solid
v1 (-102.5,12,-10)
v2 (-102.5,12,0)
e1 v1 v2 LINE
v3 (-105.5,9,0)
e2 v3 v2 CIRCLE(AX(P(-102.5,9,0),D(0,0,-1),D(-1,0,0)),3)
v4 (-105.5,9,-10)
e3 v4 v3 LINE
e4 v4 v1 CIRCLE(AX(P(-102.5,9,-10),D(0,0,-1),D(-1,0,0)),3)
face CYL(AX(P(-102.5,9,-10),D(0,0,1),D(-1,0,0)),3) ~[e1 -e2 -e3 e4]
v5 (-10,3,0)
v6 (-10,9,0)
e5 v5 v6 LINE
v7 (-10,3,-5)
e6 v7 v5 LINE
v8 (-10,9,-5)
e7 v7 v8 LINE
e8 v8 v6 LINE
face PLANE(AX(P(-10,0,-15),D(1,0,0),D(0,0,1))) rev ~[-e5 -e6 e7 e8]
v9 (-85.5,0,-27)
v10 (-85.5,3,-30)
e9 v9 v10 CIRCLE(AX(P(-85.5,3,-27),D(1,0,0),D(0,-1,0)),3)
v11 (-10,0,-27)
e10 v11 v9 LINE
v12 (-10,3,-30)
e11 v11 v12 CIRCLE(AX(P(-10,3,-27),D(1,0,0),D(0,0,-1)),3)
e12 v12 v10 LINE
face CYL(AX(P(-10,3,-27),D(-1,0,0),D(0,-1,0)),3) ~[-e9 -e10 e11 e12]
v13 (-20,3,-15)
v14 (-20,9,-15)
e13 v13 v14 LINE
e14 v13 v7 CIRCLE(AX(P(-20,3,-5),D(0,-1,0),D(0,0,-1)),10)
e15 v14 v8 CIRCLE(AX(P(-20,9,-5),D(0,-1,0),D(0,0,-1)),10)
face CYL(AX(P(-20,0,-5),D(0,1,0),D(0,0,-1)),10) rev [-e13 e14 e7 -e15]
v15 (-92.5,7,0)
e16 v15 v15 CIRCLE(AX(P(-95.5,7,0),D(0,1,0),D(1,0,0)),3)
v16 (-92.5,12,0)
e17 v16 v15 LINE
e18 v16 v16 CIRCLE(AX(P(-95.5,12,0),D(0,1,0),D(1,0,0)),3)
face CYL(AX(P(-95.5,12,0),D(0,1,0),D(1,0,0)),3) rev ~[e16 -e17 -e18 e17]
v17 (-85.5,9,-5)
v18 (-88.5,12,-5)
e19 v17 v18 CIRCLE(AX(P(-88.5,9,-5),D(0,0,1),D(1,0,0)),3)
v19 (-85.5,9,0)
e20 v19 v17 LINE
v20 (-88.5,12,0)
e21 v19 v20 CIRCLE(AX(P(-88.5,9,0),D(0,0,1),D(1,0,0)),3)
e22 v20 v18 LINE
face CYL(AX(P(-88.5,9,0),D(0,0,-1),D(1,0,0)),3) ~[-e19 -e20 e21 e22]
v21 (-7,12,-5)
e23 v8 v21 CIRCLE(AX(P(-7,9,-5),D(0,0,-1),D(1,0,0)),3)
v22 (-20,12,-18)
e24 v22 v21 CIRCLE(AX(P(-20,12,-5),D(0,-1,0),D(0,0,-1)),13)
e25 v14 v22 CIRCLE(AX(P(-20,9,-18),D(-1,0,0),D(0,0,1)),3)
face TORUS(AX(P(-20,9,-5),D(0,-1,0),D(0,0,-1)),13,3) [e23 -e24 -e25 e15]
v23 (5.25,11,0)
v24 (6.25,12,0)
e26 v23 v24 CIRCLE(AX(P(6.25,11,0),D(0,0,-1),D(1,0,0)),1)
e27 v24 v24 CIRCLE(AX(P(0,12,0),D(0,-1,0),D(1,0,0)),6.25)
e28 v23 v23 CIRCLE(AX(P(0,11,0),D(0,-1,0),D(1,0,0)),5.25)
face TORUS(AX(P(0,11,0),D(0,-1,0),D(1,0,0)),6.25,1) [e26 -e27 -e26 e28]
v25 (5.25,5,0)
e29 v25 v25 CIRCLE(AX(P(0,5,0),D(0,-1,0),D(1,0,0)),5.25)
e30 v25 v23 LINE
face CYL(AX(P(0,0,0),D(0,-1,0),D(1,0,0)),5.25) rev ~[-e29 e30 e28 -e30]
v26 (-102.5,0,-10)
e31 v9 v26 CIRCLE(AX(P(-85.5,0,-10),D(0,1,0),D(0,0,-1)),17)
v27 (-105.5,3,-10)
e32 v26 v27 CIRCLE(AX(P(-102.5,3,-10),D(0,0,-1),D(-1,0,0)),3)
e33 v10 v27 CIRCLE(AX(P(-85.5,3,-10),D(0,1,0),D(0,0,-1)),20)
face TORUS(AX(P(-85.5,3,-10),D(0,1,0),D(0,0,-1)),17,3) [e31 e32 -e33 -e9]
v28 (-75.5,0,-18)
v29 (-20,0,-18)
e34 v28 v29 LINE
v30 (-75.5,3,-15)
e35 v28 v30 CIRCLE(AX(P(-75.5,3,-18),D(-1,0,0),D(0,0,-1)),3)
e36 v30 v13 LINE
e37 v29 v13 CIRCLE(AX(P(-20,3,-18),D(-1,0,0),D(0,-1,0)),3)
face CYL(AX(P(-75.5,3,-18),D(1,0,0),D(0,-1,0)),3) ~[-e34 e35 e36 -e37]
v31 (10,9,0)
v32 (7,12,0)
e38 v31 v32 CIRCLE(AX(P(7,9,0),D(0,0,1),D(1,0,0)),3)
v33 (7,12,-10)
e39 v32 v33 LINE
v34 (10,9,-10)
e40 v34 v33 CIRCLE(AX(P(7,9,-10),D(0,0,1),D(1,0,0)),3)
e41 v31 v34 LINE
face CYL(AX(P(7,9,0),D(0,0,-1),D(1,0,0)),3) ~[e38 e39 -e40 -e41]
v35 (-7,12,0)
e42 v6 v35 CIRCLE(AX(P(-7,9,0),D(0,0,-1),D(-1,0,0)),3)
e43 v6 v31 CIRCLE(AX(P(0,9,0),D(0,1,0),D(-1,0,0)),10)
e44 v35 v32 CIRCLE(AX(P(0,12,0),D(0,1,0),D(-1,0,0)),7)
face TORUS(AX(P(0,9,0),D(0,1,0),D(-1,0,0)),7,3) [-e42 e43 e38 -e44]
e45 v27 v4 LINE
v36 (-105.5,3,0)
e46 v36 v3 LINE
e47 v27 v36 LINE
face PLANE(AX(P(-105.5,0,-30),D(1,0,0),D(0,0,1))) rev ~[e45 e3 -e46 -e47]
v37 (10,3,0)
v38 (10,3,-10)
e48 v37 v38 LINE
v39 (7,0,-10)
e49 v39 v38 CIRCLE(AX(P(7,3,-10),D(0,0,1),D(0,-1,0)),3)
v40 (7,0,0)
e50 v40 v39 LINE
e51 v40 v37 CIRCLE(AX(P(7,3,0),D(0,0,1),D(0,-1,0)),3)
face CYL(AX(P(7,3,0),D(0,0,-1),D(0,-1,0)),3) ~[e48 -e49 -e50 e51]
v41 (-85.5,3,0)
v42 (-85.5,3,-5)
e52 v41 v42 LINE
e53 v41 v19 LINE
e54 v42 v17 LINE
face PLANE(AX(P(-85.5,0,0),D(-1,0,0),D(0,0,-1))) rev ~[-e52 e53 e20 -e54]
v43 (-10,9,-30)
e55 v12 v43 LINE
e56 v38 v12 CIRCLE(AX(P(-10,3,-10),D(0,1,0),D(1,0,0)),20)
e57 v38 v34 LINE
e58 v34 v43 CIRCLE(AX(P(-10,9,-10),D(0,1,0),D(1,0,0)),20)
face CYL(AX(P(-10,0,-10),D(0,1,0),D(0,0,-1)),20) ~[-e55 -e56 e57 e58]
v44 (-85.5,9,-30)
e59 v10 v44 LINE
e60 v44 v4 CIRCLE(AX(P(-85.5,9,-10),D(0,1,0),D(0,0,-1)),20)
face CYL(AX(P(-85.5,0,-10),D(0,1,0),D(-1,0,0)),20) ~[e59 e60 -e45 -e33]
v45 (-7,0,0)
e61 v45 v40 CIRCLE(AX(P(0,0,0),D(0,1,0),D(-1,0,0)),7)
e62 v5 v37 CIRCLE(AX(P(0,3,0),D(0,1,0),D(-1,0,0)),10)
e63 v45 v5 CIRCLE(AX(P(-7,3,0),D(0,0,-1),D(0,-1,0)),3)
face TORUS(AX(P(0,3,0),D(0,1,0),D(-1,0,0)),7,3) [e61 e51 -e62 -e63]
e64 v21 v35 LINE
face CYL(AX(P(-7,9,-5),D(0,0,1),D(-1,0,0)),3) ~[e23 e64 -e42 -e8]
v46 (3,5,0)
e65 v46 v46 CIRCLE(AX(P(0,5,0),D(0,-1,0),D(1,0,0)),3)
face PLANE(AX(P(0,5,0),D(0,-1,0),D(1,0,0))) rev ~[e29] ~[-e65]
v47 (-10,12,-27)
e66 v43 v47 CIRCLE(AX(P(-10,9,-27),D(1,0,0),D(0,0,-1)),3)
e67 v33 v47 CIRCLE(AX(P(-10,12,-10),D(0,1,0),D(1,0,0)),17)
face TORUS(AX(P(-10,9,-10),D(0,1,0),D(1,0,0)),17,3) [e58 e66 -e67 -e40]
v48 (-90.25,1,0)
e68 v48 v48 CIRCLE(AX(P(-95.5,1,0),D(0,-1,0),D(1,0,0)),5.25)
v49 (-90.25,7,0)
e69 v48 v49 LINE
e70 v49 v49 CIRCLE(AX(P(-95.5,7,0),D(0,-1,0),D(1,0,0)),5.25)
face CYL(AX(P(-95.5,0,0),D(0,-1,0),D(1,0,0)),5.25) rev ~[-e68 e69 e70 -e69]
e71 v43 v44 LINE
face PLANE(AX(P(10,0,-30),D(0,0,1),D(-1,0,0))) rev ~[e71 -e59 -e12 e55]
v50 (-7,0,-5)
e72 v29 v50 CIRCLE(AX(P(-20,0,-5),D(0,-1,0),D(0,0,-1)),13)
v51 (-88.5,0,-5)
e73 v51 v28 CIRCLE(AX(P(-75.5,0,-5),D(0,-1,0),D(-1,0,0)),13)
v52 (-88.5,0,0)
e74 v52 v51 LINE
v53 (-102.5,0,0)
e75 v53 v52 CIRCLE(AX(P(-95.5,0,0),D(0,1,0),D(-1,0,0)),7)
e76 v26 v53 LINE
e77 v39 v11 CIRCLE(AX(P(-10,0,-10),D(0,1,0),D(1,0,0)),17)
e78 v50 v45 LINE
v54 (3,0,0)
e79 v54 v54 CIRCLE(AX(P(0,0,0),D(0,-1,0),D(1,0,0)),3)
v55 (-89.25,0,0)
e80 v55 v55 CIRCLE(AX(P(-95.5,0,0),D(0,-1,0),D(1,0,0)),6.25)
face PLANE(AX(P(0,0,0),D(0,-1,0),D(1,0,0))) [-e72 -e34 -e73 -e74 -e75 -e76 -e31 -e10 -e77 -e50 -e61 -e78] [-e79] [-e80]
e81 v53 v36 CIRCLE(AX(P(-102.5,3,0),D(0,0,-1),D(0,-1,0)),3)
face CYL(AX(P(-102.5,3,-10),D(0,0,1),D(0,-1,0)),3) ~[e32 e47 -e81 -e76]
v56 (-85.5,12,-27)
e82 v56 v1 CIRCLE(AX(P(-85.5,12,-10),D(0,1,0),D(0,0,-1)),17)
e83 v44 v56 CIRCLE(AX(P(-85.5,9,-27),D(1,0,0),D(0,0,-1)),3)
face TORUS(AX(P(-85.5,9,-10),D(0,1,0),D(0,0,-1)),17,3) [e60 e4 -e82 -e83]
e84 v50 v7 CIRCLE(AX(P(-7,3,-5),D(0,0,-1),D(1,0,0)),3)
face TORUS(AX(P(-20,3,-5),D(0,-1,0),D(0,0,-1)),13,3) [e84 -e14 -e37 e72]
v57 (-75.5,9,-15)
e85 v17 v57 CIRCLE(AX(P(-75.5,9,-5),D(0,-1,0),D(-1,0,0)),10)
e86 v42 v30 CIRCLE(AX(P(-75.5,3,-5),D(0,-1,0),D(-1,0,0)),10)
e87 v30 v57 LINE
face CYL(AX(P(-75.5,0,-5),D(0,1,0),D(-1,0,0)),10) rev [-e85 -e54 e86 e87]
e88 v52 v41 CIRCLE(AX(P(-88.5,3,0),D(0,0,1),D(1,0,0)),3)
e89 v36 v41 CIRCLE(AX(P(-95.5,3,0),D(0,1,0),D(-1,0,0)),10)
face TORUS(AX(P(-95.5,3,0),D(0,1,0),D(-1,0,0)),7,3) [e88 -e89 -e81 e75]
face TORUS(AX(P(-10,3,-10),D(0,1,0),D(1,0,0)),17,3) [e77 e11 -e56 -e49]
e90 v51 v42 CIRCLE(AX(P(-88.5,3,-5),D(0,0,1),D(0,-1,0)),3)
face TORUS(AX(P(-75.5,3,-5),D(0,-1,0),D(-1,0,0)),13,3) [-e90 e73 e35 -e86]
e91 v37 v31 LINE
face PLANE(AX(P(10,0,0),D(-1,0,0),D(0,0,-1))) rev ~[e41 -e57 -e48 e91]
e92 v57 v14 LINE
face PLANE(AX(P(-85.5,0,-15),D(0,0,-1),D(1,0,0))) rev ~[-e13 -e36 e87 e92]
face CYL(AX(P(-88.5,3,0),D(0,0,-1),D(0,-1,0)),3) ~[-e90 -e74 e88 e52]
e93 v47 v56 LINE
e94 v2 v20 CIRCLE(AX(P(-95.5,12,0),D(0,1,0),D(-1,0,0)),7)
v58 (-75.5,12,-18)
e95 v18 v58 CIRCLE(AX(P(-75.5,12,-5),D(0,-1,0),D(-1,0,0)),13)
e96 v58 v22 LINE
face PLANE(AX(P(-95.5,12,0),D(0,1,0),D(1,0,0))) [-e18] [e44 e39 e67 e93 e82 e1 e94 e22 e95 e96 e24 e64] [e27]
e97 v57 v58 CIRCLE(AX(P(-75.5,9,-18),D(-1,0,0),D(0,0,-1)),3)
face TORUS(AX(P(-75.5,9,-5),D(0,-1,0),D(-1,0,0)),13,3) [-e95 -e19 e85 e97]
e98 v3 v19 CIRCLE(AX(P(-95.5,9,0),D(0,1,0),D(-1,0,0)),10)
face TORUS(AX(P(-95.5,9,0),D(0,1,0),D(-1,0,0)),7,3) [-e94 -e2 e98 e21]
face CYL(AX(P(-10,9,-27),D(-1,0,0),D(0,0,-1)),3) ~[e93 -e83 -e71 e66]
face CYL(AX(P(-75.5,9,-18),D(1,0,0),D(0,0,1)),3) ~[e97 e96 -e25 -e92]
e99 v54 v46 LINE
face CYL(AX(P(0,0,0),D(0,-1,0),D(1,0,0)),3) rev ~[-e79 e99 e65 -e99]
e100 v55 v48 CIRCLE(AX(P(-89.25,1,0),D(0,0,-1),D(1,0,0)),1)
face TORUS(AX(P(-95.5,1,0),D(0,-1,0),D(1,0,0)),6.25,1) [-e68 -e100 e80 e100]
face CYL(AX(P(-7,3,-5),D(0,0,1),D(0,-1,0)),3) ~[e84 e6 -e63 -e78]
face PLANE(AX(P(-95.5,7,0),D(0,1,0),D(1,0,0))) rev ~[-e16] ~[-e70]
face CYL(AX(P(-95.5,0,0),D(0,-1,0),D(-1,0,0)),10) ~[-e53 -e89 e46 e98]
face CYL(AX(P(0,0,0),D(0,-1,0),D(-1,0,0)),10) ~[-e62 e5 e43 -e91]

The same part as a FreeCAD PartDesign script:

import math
import FreeCAD as App
import Part
import Sketcher

V = App.Vector
Q = App.Units.Quantity


def edges_at(feature, points):
    """Names of the edges that pass closest to the given points."""
    edges = feature.Shape.Edges
    near = lambda p: min(range(len(edges)), key=lambda i: edges[i].distToShape(Part.Vertex(*p))[0])
    return sorted({f"Edge{near(p) + 1}" for p in points})

doc = App.newDocument("Part")
params = doc.addObject("Spreadsheet::Sheet", "Params")
for row, (alias, value) in enumerate([
    ("sketch1_diameter", "10 mm"),
    ("sketch1_radius", "10 mm"),
    ("sketch1_height", "30 mm"),
    ("sketch1_height2", "15 mm"),
    ("sketch1_width", "75.5 mm"),
    ("pad1_length", "12 mm"),
    ("fillet_radius", "20 mm"),
    ("fillet2_radius", "10 mm"),
    ("fillet3_radius", "3 mm"),
    ("sketch2_diameter", "10.5 mm"),
    ("pocket1_length", "36 mm"),
    ("fillet4_radius", "1 mm"),
    ("sketch3_diameter", "6 mm"),
    ("sketch3_diameter2", "12.5 mm"),
    ("pad2_length", "5 mm"),
    ("sketch4_diameter", "6 mm"),
    ("sketch4_diameter2", "12.5 mm"),
    ("pad3_length", "5 mm"),
], start=1):
    params.set(f"A{row}", alias)
    params.set(f"B{row}", "=" + value)
    params.setAlias(f"B{row}", alias)

body = doc.addObject("PartDesign::Body", "Body")

# Sketch on XZ plane
sketch1 = body.newObject("Sketcher::SketchObject", "Sketch")
sketch1.AttachmentSupport = (doc.getObject("XZ_Plane"), [""])
sketch1.MapMode = "FlatFace"
sketch1.addGeometry([
    Part.LineSegment(V(-105.5, -30, 0), V(-105.5, 0, 0)),  # 0
    Part.ArcOfCircle(Part.Circle(V(-95.5, 0, 0), V(0, 0, 1), 10), math.radians(0), math.radians(180)),  # 1
    Part.LineSegment(V(-85.5, 0, 0), V(-85.5, -15, 0)),  # 2
    Part.LineSegment(V(-85.5, -15, 0), V(-10, -15, 0)),  # 3
    Part.LineSegment(V(-10, -15, 0), V(-10, 0, 0)),  # 4
    Part.ArcOfCircle(Part.Circle(V(0, 0, 0), V(0, 0, 1), 10), math.radians(0), math.radians(180)),  # 5
    Part.LineSegment(V(10, 0, 0), V(10, -30, 0)),  # 6
    Part.LineSegment(V(10, -30, 0), V(-105.5, -30, 0)),  # 7
    Part.Circle(V(-95.5, 0, 0), V(0, 0, 1), 5),  # 8
], False)
sketch1.addConstraint([
    Sketcher.Constraint("Tangent", 0, 2, 1, 2),
    Sketcher.Constraint("Tangent", 1, 1, 2, 1),
    Sketcher.Constraint("Coincident", 2, 2, 3, 1),
    Sketcher.Constraint("Coincident", 3, 2, 4, 1),
    Sketcher.Constraint("Tangent", 4, 2, 5, 2),
    Sketcher.Constraint("Tangent", 5, 1, 6, 1),
    Sketcher.Constraint("Coincident", 6, 2, 7, 1),
    Sketcher.Constraint("Coincident", 7, 2, 0, 1),
    Sketcher.Constraint("Vertical", 0),
    Sketcher.Constraint("Vertical", 2),
    Sketcher.Constraint("Horizontal", 3),
    Sketcher.Constraint("Vertical", 4),
    Sketcher.Constraint("Vertical", 6),
    Sketcher.Constraint("Horizontal", 7),
    Sketcher.Constraint("Coincident", 5, 3, -1, 1),
    Sketcher.Constraint("Coincident", 8, 3, 1, 3),
    Sketcher.Constraint("Equal", 1, 5),
    Sketcher.Constraint("PointOnObject", 1, 3, -1),
    Sketcher.Constraint("Diameter", 8, Q("10 mm")),
    Sketcher.Constraint("Radius", 1, Q("10 mm")),
    Sketcher.Constraint("DistanceY", 0, 1, 0, 2, Q("30 mm")),
    Sketcher.Constraint("DistanceY", 2, 2, 2, 1, Q("15 mm")),
    Sketcher.Constraint("DistanceX", 3, 1, 3, 2, Q("75.5 mm")),
])
sketch1.setExpression("Constraints[18]", "Params.sketch1_diameter")
sketch1.setExpression("Constraints[19]", "Params.sketch1_radius")
sketch1.setExpression("Constraints[20]", "Params.sketch1_height")
sketch1.setExpression("Constraints[21]", "Params.sketch1_height2")
sketch1.setExpression("Constraints[22]", "Params.sketch1_width")
pad1 = body.newObject("PartDesign::Pad", "Pad")
pad1.Profile = sketch1
pad1.setExpression("Length", "Params.pad1_length")
pad1.Reversed = True
doc.recompute()

fillet = body.newObject("PartDesign::Fillet", "Fillet")
fillet.Base = (pad1, edges_at(pad1, [(-105.5, 6, -30), (10, 6, -30)]))
fillet.setExpression("Radius", "Params.fillet_radius")
doc.recompute()

fillet2 = body.newObject("PartDesign::Fillet", "Fillet001")
fillet2.Base = (fillet, edges_at(fillet, [(-10, 6, -15), (-85.5, 6, -15)]))
fillet2.setExpression("Radius", "Params.fillet2_radius")
doc.recompute()

fillet3 = body.newObject("PartDesign::Fillet", "Fillet002")
fillet3.Base = (fillet2, edges_at(fillet2, [
    (10, 0, -5),
    (-105.5, 12, -5),
    (0, 0, 10),
    (-10, 0, -2.5),
    (-85.5, 0, -2.5),
    (-95.5, 0, 10),
    (-105.5, 0, -5),
    (-95.5, 12, 10),
    (-85.5, 12, -2.5),
    (-47.75, 0, -30),
    (-47.75, 12, -30),
    (-10, 12, -2.5),
    (-99.642, 0, -24.142),
    (4.142, 0, -24.142),
    (-99.642, 12, -24.142),
    (4.142, 12, -24.142),
    (0, 12, 10),
    (10, 12, -5),
    (-47.75, 0, -15),
    (-47.75, 12, -15),
    (-12.929, 0, -12.071),
    (-12.929, 12, -12.071),
    (-82.571, 0, -12.071),
    (-82.571, 12, -12.071),
]))
fillet3.setExpression("Radius", "Params.fillet3_radius")

# Sketch on XZ plane
sketch2 = body.newObject("Sketcher::SketchObject", "Sketch001")
sketch2.AttachmentSupport = (doc.getObject("XZ_Plane"), [""])
sketch2.MapMode = "FlatFace"
sketch2.addGeometry([
    Part.Circle(V(-95.5, 0, 0), V(0, 0, 1), 5.25),
    Part.Circle(V(0, 0, 0), V(0, 0, 1), 5.25),
], False)
sketch2.addConstraint([
    Sketcher.Constraint("Coincident", 1, 3, -1, 1),
    Sketcher.Constraint("Equal", 0, 1),
    Sketcher.Constraint("PointOnObject", 0, 3, -1),
    Sketcher.Constraint("Diameter", 0, Q("10.5 mm")),
    Sketcher.Constraint("DistanceX", 0, 3, -1, 1, Q("95.5 mm")),
])
sketch2.setExpression("Constraints[3]", "Params.sketch2_diameter")
pocket1 = body.newObject("PartDesign::Pocket", "Pocket")
pocket1.Profile = sketch2
pocket1.setExpression("Length", "Params.pocket1_length")
doc.recompute()

fillet4 = body.newObject("PartDesign::Fillet", "Fillet003")
fillet4.Base = (pocket1, edges_at(pocket1, [
    (-100.75, 12, 0),
    (-100.75, 0, 0),
    (-5.25, 12, 0),
    (-5.25, 0, 0),
]))
fillet4.setExpression("Radius", "Params.fillet4_radius")

# Sketch on XZ plane
sketch3 = body.newObject("Sketcher::SketchObject", "Sketch002")
sketch3.AttachmentSupport = (doc.getObject("XZ_Plane"), [""])
sketch3.MapMode = "FlatFace"
sketch3.AttachmentOffset = App.Placement(V(0, 0, -12), App.Rotation())
sketch3.addGeometry([
    Part.Circle(V(-95.5, 0, 0), V(0, 0, 1), 6.25),
    Part.Circle(V(-95.5, 0, 0), V(0, 0, 1), 3),
], False)
sketch3.addConstraint([
    Sketcher.Constraint("Coincident", 1, 3, 0, 3),
    Sketcher.Constraint("PointOnObject", 0, 3, -1),
    Sketcher.Constraint("Diameter", 1, Q("6 mm")),
    Sketcher.Constraint("Diameter", 0, Q("12.5 mm")),
    Sketcher.Constraint("DistanceX", 0, 3, -1, 1, Q("95.5 mm")),
])
sketch3.setExpression("Constraints[2]", "Params.sketch3_diameter")
sketch3.setExpression("Constraints[3]", "Params.sketch3_diameter2")
pad2 = body.newObject("PartDesign::Pad", "Pad001")
pad2.Profile = sketch3
pad2.setExpression("Length", "Params.pad2_length")

# Sketch on XZ plane
sketch4 = body.newObject("Sketcher::SketchObject", "Sketch003")
sketch4.AttachmentSupport = (doc.getObject("XZ_Plane"), [""])
sketch4.MapMode = "FlatFace"
sketch4.addGeometry([
    Part.Circle(V(0, 0, 0), V(0, 0, 1), 6.25),
    Part.Circle(V(0, 0, 0), V(0, 0, 1), 3),
], False)
sketch4.addConstraint([
    Sketcher.Constraint("Coincident", 0, 3, -1, 1),
    Sketcher.Constraint("Coincident", 1, 3, -1, 1),
    Sketcher.Constraint("Diameter", 1, Q("6 mm")),
    Sketcher.Constraint("Diameter", 0, Q("12.5 mm")),
])
sketch4.setExpression("Constraints[2]", "Params.sketch4_diameter")
sketch4.setExpression("Constraints[3]", "Params.sketch4_diameter2")
pad3 = body.newObject("PartDesign::Pad", "Pad002")
pad3.Profile = sketch4
pad3.setExpression("Length", "Params.pad3_length")
pad3.Reversed = True

doc.recompute()
